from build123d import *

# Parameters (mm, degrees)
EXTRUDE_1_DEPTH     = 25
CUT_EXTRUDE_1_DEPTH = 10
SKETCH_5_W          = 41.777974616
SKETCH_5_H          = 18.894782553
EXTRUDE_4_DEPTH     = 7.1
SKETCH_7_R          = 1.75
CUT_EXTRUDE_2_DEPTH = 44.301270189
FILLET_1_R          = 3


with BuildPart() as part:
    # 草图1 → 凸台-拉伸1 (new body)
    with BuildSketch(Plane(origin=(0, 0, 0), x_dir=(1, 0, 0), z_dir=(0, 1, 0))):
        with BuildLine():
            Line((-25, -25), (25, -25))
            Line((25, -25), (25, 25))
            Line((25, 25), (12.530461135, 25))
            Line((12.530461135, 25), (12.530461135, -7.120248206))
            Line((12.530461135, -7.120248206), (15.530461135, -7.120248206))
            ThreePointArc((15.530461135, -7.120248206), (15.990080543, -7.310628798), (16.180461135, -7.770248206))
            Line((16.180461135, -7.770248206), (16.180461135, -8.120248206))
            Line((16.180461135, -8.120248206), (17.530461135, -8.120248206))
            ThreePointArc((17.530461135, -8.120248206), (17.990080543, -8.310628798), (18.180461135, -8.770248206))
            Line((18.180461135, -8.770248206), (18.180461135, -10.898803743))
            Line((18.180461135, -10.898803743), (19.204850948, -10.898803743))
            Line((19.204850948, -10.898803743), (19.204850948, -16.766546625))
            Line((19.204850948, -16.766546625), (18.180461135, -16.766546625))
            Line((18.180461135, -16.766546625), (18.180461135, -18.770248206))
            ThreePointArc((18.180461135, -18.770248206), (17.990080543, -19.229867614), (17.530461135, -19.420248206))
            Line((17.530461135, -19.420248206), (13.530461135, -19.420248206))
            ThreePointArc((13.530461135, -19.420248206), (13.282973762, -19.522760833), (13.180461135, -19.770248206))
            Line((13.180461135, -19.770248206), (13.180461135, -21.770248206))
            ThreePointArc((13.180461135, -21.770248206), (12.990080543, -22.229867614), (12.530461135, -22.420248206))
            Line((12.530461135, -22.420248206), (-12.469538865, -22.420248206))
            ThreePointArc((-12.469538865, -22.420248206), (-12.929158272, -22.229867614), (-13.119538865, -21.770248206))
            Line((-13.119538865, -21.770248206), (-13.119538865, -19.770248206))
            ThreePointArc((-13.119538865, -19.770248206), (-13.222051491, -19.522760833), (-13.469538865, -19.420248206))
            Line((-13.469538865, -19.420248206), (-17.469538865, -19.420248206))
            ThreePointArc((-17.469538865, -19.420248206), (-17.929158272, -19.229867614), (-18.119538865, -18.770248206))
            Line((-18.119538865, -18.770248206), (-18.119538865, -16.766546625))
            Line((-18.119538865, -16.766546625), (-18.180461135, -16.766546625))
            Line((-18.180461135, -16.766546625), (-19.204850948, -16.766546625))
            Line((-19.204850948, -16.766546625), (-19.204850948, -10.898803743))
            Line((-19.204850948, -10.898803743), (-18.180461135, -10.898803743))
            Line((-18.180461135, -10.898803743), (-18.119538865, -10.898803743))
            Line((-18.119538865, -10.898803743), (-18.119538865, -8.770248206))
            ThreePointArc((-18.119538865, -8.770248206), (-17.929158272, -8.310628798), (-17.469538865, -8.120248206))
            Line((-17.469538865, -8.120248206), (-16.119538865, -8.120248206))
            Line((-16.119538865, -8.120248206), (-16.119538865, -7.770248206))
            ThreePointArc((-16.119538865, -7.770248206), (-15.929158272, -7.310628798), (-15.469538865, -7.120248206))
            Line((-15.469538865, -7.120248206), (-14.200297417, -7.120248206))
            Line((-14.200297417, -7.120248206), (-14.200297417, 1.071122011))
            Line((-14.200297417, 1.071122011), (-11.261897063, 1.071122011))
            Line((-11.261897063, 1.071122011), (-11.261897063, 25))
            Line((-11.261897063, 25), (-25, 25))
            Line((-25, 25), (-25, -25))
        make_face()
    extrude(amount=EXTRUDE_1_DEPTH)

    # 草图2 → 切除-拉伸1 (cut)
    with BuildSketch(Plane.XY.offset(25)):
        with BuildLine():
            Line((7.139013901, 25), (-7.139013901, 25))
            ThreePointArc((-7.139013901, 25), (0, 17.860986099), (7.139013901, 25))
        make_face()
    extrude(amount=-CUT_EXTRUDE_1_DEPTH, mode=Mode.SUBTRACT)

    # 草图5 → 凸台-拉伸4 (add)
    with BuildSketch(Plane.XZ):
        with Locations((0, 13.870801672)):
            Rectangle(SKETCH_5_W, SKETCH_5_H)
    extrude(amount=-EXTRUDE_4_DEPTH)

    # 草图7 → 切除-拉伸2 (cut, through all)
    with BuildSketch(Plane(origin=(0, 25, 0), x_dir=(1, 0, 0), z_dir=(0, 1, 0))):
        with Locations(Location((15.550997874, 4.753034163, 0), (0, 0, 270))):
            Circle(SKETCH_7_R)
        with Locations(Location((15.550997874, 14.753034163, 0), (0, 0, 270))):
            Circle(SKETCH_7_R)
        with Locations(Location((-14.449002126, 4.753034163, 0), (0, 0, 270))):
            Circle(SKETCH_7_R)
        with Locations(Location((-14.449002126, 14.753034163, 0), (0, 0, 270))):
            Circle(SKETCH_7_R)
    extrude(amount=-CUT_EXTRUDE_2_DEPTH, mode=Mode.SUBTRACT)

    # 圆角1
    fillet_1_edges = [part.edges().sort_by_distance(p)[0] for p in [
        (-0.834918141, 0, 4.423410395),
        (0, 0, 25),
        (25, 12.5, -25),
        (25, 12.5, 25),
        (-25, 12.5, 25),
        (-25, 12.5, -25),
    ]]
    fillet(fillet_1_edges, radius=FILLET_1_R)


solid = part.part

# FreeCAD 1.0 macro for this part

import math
import FreeCAD as App
import Part
import Sketcher


def edges_at(feature, points):
    """Names of the edges that pass closest to the given points."""
    edges = feature.Shape.Edges
    near = lambda p: min(range(len(edges)), key=lambda i: edges[i].distToShape(Part.Vertex(*p))[0])
    return sorted({f"Edge{near(p) + 1}" for p in points})

doc = App.newDocument("Part")
params = doc.addObject("Spreadsheet::Sheet", "Params")
for row, (alias, value) in enumerate([
    ("sketch1_width", "50 mm"),
    ("sketch1_width2", "3 mm"),
    ("sketch1_width3", "4 mm"),
    ("sketch1_width4", "25 mm"),
    ("sketch1_height", "2 mm"),
    ("pad1_length", "25 mm"),
    ("pocket1_length", "10 mm"),
    ("pad2_length", "7.1 mm"),
    ("sketch4_diameter", "3.5 mm"),
    ("fillet_radius", "3 mm"),
], start=1):
    params.set(f"A{row}", alias)
    params.set(f"B{row}", "=" + value)
    params.setAlias(f"B{row}", alias)

body = doc.addObject("PartDesign::Body", "Body")

# Sketch on XZ plane
sketch1 = doc.addObject("Sketcher::SketchObject", "Sketch")
body.addObject(sketch1)
sketch1.AttachmentSupport = (doc.XZ_Plane, [""])
sketch1.MapMode = "FlatFace"
sketch1.addGeometry(Part.LineSegment(App.Vector(-25, 25, 0), App.Vector(25, 25, 0)), False)
sketch1.addGeometry(Part.LineSegment(App.Vector(25, 25, 0), App.Vector(25, -25, 0)), False)
sketch1.addGeometry(Part.LineSegment(App.Vector(25, -25, 0), App.Vector(12.53, -25, 0)), False)
sketch1.addGeometry(Part.LineSegment(App.Vector(12.53, -25, 0), App.Vector(12.53, 7.12, 0)), False)
sketch1.addGeometry(Part.LineSegment(App.Vector(12.53, 7.12, 0), App.Vector(15.53, 7.12, 0)), False)
sketch1.addGeometry(Part.ArcOfCircle(Part.Circle(App.Vector(15.53, 7.77, 0), App.Vector(0, 0, 1), 0.65), math.radians(-90), math.radians(0)), False)
sketch1.addGeometry(Part.LineSegment(App.Vector(16.18, 7.77, 0), App.Vector(16.18, 8.12, 0)), False)
sketch1.addGeometry(Part.LineSegment(App.Vector(16.18, 8.12, 0), App.Vector(17.53, 8.12, 0)), False)
sketch1.addGeometry(Part.ArcOfCircle(Part.Circle(App.Vector(17.53, 8.77, 0), App.Vector(0, 0, 1), 0.65), math.radians(-90), math.radians(0)), False)
sketch1.addGeometry(Part.LineSegment(App.Vector(18.18, 8.77, 0), App.Vector(18.18, 10.9, 0)), False)
sketch1.addGeometry(Part.LineSegment(App.Vector(18.18, 10.9, 0), App.Vector(19.2, 10.9, 0)), False)
sketch1.addGeometry(Part.LineSegment(App.Vector(19.2, 10.9, 0), App.Vector(19.2, 16.77, 0)), False)
sketch1.addGeometry(Part.LineSegment(App.Vector(19.2, 16.77, 0), App.Vector(18.18, 16.77, 0)), False)
sketch1.addGeometry(Part.LineSegment(App.Vector(18.18, 16.77, 0), App.Vector(18.18, 18.77, 0)), False)
sketch1.addGeometry(Part.ArcOfCircle(Part.Circle(App.Vector(17.53, 18.77, 0), App.Vector(0, 0, 1), 0.65), math.radians(0), math.radians(90)), False)
sketch1.addGeometry(Part.LineSegment(App.Vector(17.53, 19.42, 0), App.Vector(13.53, 19.42, 0)), False)
sketch1.addGeometry(Part.ArcOfCircle(Part.Circle(App.Vector(13.53, 19.77, 0), App.Vector(0, 0, 1), 0.35), math.radians(-180), math.radians(-90)), False)
sketch1.addGeometry(Part.LineSegment(App.Vector(13.18, 19.77, 0), App.Vector(13.18, 21.77, 0)), False)
sketch1.addGeometry(Part.ArcOfCircle(Part.Circle(App.Vector(12.53, 21.77, 0), App.Vector(0, 0, 1), 0.65), math.radians(0), math.radians(90)), False)
sketch1.addGeometry(Part.LineSegment(App.Vector(12.53, 22.42, 0), App.Vector(-12.47, 22.42, 0)), False)
sketch1.addGeometry(Part.ArcOfCircle(Part.Circle(App.Vector(-12.47, 21.77, 0), App.Vector(0, 0, 1), 0.65), math.radians(90), math.radians(180)), False)
sketch1.addGeometry(Part.LineSegment(App.Vector(-13.12, 21.77, 0), App.Vector(-13.12, 19.77, 0)), False)
sketch1.addGeometry(Part.ArcOfCircle(Part.Circle(App.Vector(-13.47, 19.77, 0), App.Vector(0, 0, 1), 0.35), math.radians(-90), math.radians(0)), False)
sketch1.addGeometry(Part.LineSegment(App.Vector(-13.47, 19.42, 0), App.Vector(-17.47, 19.42, 0)), False)
sketch1.addGeometry(Part.ArcOfCircle(Part.Circle(App.Vector(-17.47, 18.77, 0), App.Vector(0, 0, 1), 0.65), math.radians(90), math.radians(180)), False)
sketch1.addGeometry(Part.LineSegment(App.Vector(-18.12, 18.77, 0), App.Vector(-18.12, 16.77, 0)), False)
sketch1.addGeometry(Part.LineSegment(App.Vector(-18.12, 16.77, 0), App.Vector(-19.2, 16.77, 0)), False)
sketch1.addGeometry(Part.LineSegment(App.Vector(-19.2, 16.77, 0), App.Vector(-19.2, 10.9, 0)), False)
sketch1.addGeometry(Part.LineSegment(App.Vector(-19.2, 10.9, 0), App.Vector(-18.12, 10.9, 0)), False)
sketch1.addGeometry(Part.LineSegment(App.Vector(-18.12, 10.9, 0), App.Vector(-18.12, 8.77, 0)), False)
sketch1.addGeometry(Part.ArcOfCircle(Part.Circle(App.Vector(-17.47, 8.77, 0), App.Vector(0, 0, 1), 0.65), math.radians(-180), math.radians(-90)), False)
sketch1.addGeometry(Part.LineSegment(App.Vector(-17.47, 8.12, 0), App.Vector(-16.12, 8.12, 0)), False)
sketch1.addGeometry(Part.LineSegment(App.Vector(-16.12, 8.12, 0), App.Vector(-16.12, 7.77, 0)), False)
sketch1.addGeometry(Part.ArcOfCircle(Part.Circle(App.Vector(-15.47, 7.77, 0), App.Vector(0, 0, 1), 0.65), math.radians(-180), math.radians(-90)), False)
sketch1.addGeometry(Part.LineSegment(App.Vector(-15.47, 7.12, 0), App.Vector(-14.2, 7.12, 0)), False)
sketch1.addGeometry(Part.LineSegment(App.Vector(-14.2, 7.12, 0), App.Vector(-14.2, -1.07, 0)), False)
sketch1.addGeometry(Part.LineSegment(App.Vector(-14.2, -1.07, 0), App.Vector(-11.26, -1.07, 0)), False)
sketch1.addGeometry(Part.LineSegment(App.Vector(-11.26, -1.07, 0), App.Vector(-11.26, -25, 0)), False)
sketch1.addGeometry(Part.LineSegment(App.Vector(-11.26, -25, 0), App.Vector(-25, -25, 0)), False)
sketch1.addGeometry(Part.LineSegment(App.Vector(-25, -25, 0), App.Vector(-25, 25, 0)), False)
sketch1.addConstraint(Sketcher.Constraint("Coincident", 0, 2, 1, 1))
sketch1.addConstraint(Sketcher.Constraint("Coincident", 1, 2, 2, 1))
sketch1.addConstraint(Sketcher.Constraint("Coincident", 2, 2, 3, 1))
sketch1.addConstraint(Sketcher.Constraint("Coincident", 3, 2, 4, 1))
sketch1.addConstraint(Sketcher.Constraint("Tangent", 4, 2, 5, 1))
sketch1.addConstraint(Sketcher.Constraint("Tangent", 5, 2, 6, 1))
sketch1.addConstraint(Sketcher.Constraint("Coincident", 6, 2, 7, 1))
sketch1.addConstraint(Sketcher.Constraint("Tangent", 7, 2, 8, 1))
sketch1.addConstraint(Sketcher.Constraint("Tangent", 8, 2, 9, 1))
sketch1.addConstraint(Sketcher.Constraint("Coincident", 9, 2, 10, 1))
sketch1.addConstraint(Sketcher.Constraint("Coincident", 10, 2, 11, 1))
sketch1.addConstraint(Sketcher.Constraint("Coincident", 11, 2, 12, 1))
sketch1.addConstraint(Sketcher.Constraint("Coincident", 12, 2, 13, 1))
sketch1.addConstraint(Sketcher.Constraint("Tangent", 13, 2, 14, 1))
sketch1.addConstraint(Sketcher.Constraint("Tangent", 14, 2, 15, 1))
sketch1.addConstraint(Sketcher.Constraint("Tangent", 15, 2, 16, 2))
sketch1.addConstraint(Sketcher.Constraint("Tangent", 16, 1, 17, 1))
sketch1.addConstraint(Sketcher.Constraint("Tangent", 17, 2, 18, 1))
sketch1.addConstraint(Sketcher.Constraint("Tangent", 18, 2, 19, 1))
sketch1.addConstraint(Sketcher.Constraint("Tangent", 19, 2, 20, 1))
sketch1.addConstraint(Sketcher.Constraint("Tangent", 20, 2, 21, 1))
sketch1.addConstraint(Sketcher.Constraint("Tangent", 21, 2, 22, 2))
sketch1.addConstraint(Sketcher.Constraint("Tangent", 22, 1, 23, 1))
sketch1.addConstraint(Sketcher.Constraint("Tangent", 23, 2, 24, 1))
sketch1.addConstraint(Sketcher.Constraint("Tangent", 24, 2, 25, 1))
sketch1.addConstraint(Sketcher.Constraint("Coincident", 25, 2, 26, 1))
sketch1.addConstraint(Sketcher.Constraint("Coincident", 26, 2, 27, 1))
sketch1.addConstraint(Sketcher.Constraint("Coincident", 27, 2, 28, 1))
sketch1.addConstraint(Sketcher.Constraint("Coincident", 28, 2, 29, 1))
sketch1.addConstraint(Sketcher.Constraint("Tangent", 29, 2, 30, 1))
sketch1.addConstraint(Sketcher.Constraint("Tangent", 30, 2, 31, 1))
sketch1.addConstraint(Sketcher.Constraint("Coincident", 31, 2, 32, 1))
sketch1.addConstraint(Sketcher.Constraint("Tangent", 32, 2, 33, 1))
sketch1.addConstraint(Sketcher.Constraint("Tangent", 33, 2, 34, 1))
sketch1.addConstraint(Sketcher.Constraint("Coincident", 34, 2, 35, 1))
sketch1.addConstraint(Sketcher.Constraint("Coincident", 35, 2, 36, 1))
sketch1.addConstraint(Sketcher.Constraint("Coincident", 36, 2, 37, 1))
sketch1.addConstraint(Sketcher.Constraint("Coincident", 37, 2, 38, 1))
sketch1.addConstraint(Sketcher.Constraint("Coincident", 38, 2, 39, 1))
sketch1.addConstraint(Sketcher.Constraint("Coincident", 39, 2, 0, 1))
sketch1.addConstraint(Sketcher.Constraint("Horizontal", 0))
sketch1.addConstraint(Sketcher.Constraint("Vertical", 1))
sketch1.addConstraint(Sketcher.Constraint("Horizontal", 2))
sketch1.addConstraint(Sketcher.Constraint("Vertical", 3))
sketch1.addConstraint(Sketcher.Constraint("Horizontal", 4))
sketch1.addConstraint(Sketcher.Constraint("Vertical", 6))
sketch1.addConstraint(Sketcher.Constraint("Horizontal", 7))
sketch1.addConstraint(Sketcher.Constraint("Vertical", 9))
sketch1.addConstraint(Sketcher.Constraint("Horizontal", 10))
sketch1.addConstraint(Sketcher.Constraint("Vertical", 11))
sketch1.addConstraint(Sketcher.Constraint("Horizontal", 12))
sketch1.addConstraint(Sketcher.Constraint("Vertical", 13))
sketch1.addConstraint(Sketcher.Constraint("Horizontal", 15))
sketch1.addConstraint(Sketcher.Constraint("Vertical", 17))
sketch1.addConstraint(Sketcher.Constraint("Horizontal", 19))
sketch1.addConstraint(Sketcher.Constraint("Vertical", 21))
sketch1.addConstraint(Sketcher.Constraint("Horizontal", 23))
sketch1.addConstraint(Sketcher.Constraint("Vertical", 25))
sketch1.addConstraint(Sketcher.Constraint("Horizontal", 26))
sketch1.addConstraint(Sketcher.Constraint("Vertical", 27))
sketch1.addConstraint(Sketcher.Constraint("Horizontal", 28))
sketch1.addConstraint(Sketcher.Constraint("Vertical", 29))
sketch1.addConstraint(Sketcher.Constraint("Horizontal", 31))
sketch1.addConstraint(Sketcher.Constraint("Vertical", 32))
sketch1.addConstraint(Sketcher.Constraint("Horizontal", 34))
sketch1.addConstraint(Sketcher.Constraint("Vertical", 35))
sketch1.addConstraint(Sketcher.Constraint("Horizontal", 36))
sketch1.addConstraint(Sketcher.Constraint("Vertical", 37))
sketch1.addConstraint(Sketcher.Constraint("Horizontal", 38))
sketch1.addConstraint(Sketcher.Constraint("Vertical", 39))
sketch1.addConstraint(Sketcher.Constraint("Equal", 5, 8))
sketch1.addConstraint(Sketcher.Constraint("Equal", 8, 14))
sketch1.addConstraint(Sketcher.Constraint("Equal", 14, 18))
sketch1.addConstraint(Sketcher.Constraint("Equal", 18, 20))
sketch1.addConstraint(Sketcher.Constraint("Equal", 16, 22))
sketch1.addConstraint(Sketcher.Constraint("Equal", 20, 24))
sketch1.addConstraint(Sketcher.Constraint("Equal", 24, 30))
sketch1.addConstraint(Sketcher.Constraint("Equal", 30, 33))
sketch1.addConstraint(Sketcher.Constraint("Symmetric", 0, 2, 38, 2, -1, 1))
sketch1.addConstraint(Sketcher.Constraint("Symmetric", 11, 2, 26, 2, -2))
sketch1.addConstraint(Sketcher.Constraint("Horizontal", 16, 3, 22, 3))
sketch1.addConstraint(Sketcher.Constraint("Horizontal", 8, 3, 30, 3))
sketch1.addConstraint(Sketcher.Constraint("Horizontal", 5, 3, 33, 3))
sketch1.addConstraint(Sketcher.Constraint("Horizontal", 10, 2, 27, 2))
sketch1.addConstraint(Sketcher.Constraint("Horizontal", 2, 2, 37, 2))
sketch1.addConstraint(Sketcher.Constraint("Vertical", 8, 3, 14, 3))
sketch1.addConstraint(Sketcher.Constraint("Vertical", 24, 3, 30, 3))
sketch1.addConstraint(Sketcher.Constraint("Vertical", 18, 3, 2, 2))
sketch1.addConstraint(Sketcher.Constraint("Equal", 15, 23))
sketch1.addConstraint(Sketcher.Constraint("Equal", 7, 31))
sketch1.addConstraint(Sketcher.Constraint("Equal", 0, 1))
sketch1.addConstraint(Sketcher.Constraint("DistanceX", 0, 1, 0, 2, 50.0))
sketch1.addConstraint(Sketcher.Constraint("DistanceX", 4, 1, 4, 2, 3.0))
sketch1.addConstraint(Sketcher.Constraint("DistanceX", 15, 2, 15, 1, 4.0))
sketch1.addConstraint(Sketcher.Constraint("DistanceX", 19, 2, 19, 1, 25.0))
sketch1.addConstraint(Sketcher.Constraint("DistanceY", 17, 1, 17, 2, 2.0))
sketch1.addConstraint(Sketcher.Constraint("Radius", 5, 0.65))
sketch1.addConstraint(Sketcher.Constraint("Radius", 16, 0.35))
sketch1.addConstraint(Sketcher.Constraint("DistanceY", 5, 3, 8, 3, 1.0))
sketch1.addConstraint(Sketcher.Constraint("DistanceY", 8, 3, 14, 3, 10.0))
sketch1.addConstraint(Sketcher.Constraint("DistanceX", 36, 1, 36, 2, 2.9384))
sketch1.addConstraint(Sketcher.Constraint("DistanceY", 13, 1, 13, 2, 2.003702))
sketch1.addConstraint(Sketcher.Constraint("DistanceX", 2, 2, 2, 1, 12.469539))
sketch1.addConstraint(Sketcher.Constraint("DistanceX", 10, 1, 10, 2, 1.02439))
sketch1.addConstraint(Sketcher.Constraint("DistanceX", 34, 1, 34, 2, 1.269241))
sketch1.addConstraint(Sketcher.Constraint("DistanceY", 3, 1, 3, 2, 32.120248))
sketch1.addConstraint(Sketcher.Constraint("DistanceY", 35, 2, 35, 1, 8.19137))
sketch1.addConstraint(Sketcher.Constraint("DistanceY", 9, 1, 9, 2, 2.128556))
sketch1.setExpression("Constraints[91]", "Params.sketch1_width")
sketch1.setExpression("Constraints[92]", "Params.sketch1_width2")
sketch1.setExpression("Constraints[93]", "Params.sketch1_width3")
sketch1.setExpression("Constraints[94]", "Params.sketch1_width4")
sketch1.setExpression("Constraints[95]", "Params.sketch1_height")
pad1 = doc.addObject("PartDesign::Pad", "Pad")
body.addObject(pad1)
pad1.Profile = sketch1
pad1.setExpression("Length", "Params.pad1_length")
pad1.Reversed = True

# Sketch on XY plane
sketch2 = doc.addObject("Sketcher::SketchObject", "Sketch001")
body.addObject(sketch2)
sketch2.AttachmentSupport = (doc.XY_Plane, [""])
sketch2.MapMode = "FlatFace"
sketch2.AttachmentOffset = App.Placement(App.Vector(0, 0, 25), App.Rotation())
sketch2.addGeometry(Part.LineSegment(App.Vector(7, 25, 0), App.Vector(-7, 25, 0)), False)
sketch2.addGeometry(Part.ArcOfCircle(Part.Circle(App.Vector(0, 25, 0), App.Vector(0, 0, 1), 7), math.radians(180), math.radians(360)), False)
sketch2.addConstraint(Sketcher.Constraint("Coincident", 0, 1, 1, 2))
sketch2.addConstraint(Sketcher.Constraint("Coincident", 1, 1, 0, 2))
sketch2.addConstraint(Sketcher.Constraint("Horizontal", 0))
sketch2.addConstraint(Sketcher.Constraint("PointOnObject", 1, 3, -2))
sketch2.addConstraint(Sketcher.Constraint("Horizontal", 1, 3, 0, 1))
sketch2.addConstraint(Sketcher.Constraint("DistanceY", -1, 1, 1, 3, 25.0))
sketch2.addConstraint(Sketcher.Constraint("Radius", 1, 7.139014))
pocket1 = doc.addObject("PartDesign::Pocket", "Pocket")
body.addObject(pocket1)
pocket1.Profile = sketch2
pocket1.setExpression("Length", "Params.pocket1_length")

# Sketch on XZ plane
sketch3 = doc.addObject("Sketcher::SketchObject", "Sketch002")
body.addObject(sketch3)
sketch3.AttachmentSupport = (doc.XZ_Plane, [""])
sketch3.MapMode = "FlatFace"
sketch3.addGeometry(Part.LineSegment(App.Vector(-21, 23, 0), App.Vector(-21, 4, 0)), False)
sketch3.addGeometry(Part.LineSegment(App.Vector(-21, 4, 0), App.Vector(21, 4, 0)), False)
sketch3.addGeometry(Part.LineSegment(App.Vector(21, 4, 0), App.Vector(21, 23, 0)), False)
sketch3.addGeometry(Part.LineSegment(App.Vector(21, 23, 0), App.Vector(-21, 23, 0)), False)
sketch3.addConstraint(Sketcher.Constraint("Coincident", 0, 2, 1, 1))
sketch3.addConstraint(Sketcher.Constraint("Coincident", 1, 2, 2, 1))
sketch3.addConstraint(Sketcher.Constraint("Coincident", 2, 2, 3, 1))
sketch3.addConstraint(Sketcher.Constraint("Coincident", 3, 2, 0, 1))
sketch3.addConstraint(Sketcher.Constraint("Vertical", 0))
sketch3.addConstraint(Sketcher.Constraint("Horizontal", 1))
sketch3.addConstraint(Sketcher.Constraint("Vertical", 2))
sketch3.addConstraint(Sketcher.Constraint("Horizontal", 3))
sketch3.addConstraint(Sketcher.Constraint("DistanceX", 1, 1, 1, 2, 41.777975))
sketch3.addConstraint(Sketcher.Constraint("DistanceY", 0, 2, 0, 1, 18.894783))
sketch3.addConstraint(Sketcher.Constraint("DistanceY", -1, 1, 0, 2, 4.42341))
sketch3.addConstraint(Sketcher.Constraint("DistanceX", 0, 2, -1, 1, 20.888987))
pad2 = doc.addObject("PartDesign::Pad", "Pad001")
body.addObject(pad2)
pad2.Profile = sketch3
pad2.setExpression("Length", "Params.pad2_length")
pad2.Reversed = True

# Sketch on XZ plane
sketch4 = doc.addObject("Sketcher::SketchObject", "Sketch003")
body.addObject(sketch4)
sketch4.AttachmentSupport = (doc.XZ_Plane, [""])
sketch4.MapMode = "FlatFace"
sketch4.AttachmentOffset = App.Placement(App.Vector(0, 0, -25), App.Rotation())
sketch4.addGeometry(Part.Circle(App.Vector(15.6, -4.8, 0), App.Vector(0, 0, 1), 1.8), False)
sketch4.addGeometry(Part.Circle(App.Vector(15.6, -14.8, 0), App.Vector(0, 0, 1), 1.8), False)
sketch4.addGeometry(Part.Circle(App.Vector(-14.4, -4.8, 0), App.Vector(0, 0, 1), 1.8), False)
sketch4.addGeometry(Part.Circle(App.Vector(-14.4, -14.8, 0), App.Vector(0, 0, 1), 1.8), False)
sketch4.addConstraint(Sketcher.Constraint("Equal", 0, 1))
sketch4.addConstraint(Sketcher.Constraint("Equal", 1, 2))
sketch4.addConstraint(Sketcher.Constraint("Equal", 2, 3))
sketch4.addConstraint(Sketcher.Constraint("Horizontal", 0, 3, 2, 3))
sketch4.addConstraint(Sketcher.Constraint("Horizontal", 1, 3, 3, 3))
sketch4.addConstraint(Sketcher.Constraint("Vertical", 0, 3, 1, 3))
sketch4.addConstraint(Sketcher.Constraint("Vertical", 2, 3, 3, 3))
sketch4.addConstraint(Sketcher.Constraint("Diameter", 0, 3.5))
sketch4.addConstraint(Sketcher.Constraint("DistanceY", 1, 3, 0, 3, 10.0))
sketch4.addConstraint(Sketcher.Constraint("DistanceX", 2, 3, 0, 3, 30.0))
sketch4.addConstraint(Sketcher.Constraint("DistanceX", -1, 1, 0, 3, 15.550998))
sketch4.addConstraint(Sketcher.Constraint("DistanceY", 0, 3, -1, 1, 4.753034))
sketch4.setExpression("Constraints[7]", "Params.sketch4_diameter")
pocket2 = doc.addObject("PartDesign::Pocket", "Pocket001")
body.addObject(pocket2)
pocket2.Profile = sketch4
pocket2.Type = "ThroughAll"
pocket2.Reversed = True
doc.recompute()

fillet = doc.addObject("PartDesign::Fillet", "Fillet")
body.addObject(fillet)
fillet.Base = (pocket2, edges_at(pocket2, [
    (-0.835, 0, 4.423),
    (0, 0, 25),
    (25, 12.5, -25),
    (25, 12.5, 25),
    (-25, 12.5, 25),
    (-25, 12.5, -25),
]))
fillet.setExpression("Radius", "Params.fillet_radius")

doc.recompute()
